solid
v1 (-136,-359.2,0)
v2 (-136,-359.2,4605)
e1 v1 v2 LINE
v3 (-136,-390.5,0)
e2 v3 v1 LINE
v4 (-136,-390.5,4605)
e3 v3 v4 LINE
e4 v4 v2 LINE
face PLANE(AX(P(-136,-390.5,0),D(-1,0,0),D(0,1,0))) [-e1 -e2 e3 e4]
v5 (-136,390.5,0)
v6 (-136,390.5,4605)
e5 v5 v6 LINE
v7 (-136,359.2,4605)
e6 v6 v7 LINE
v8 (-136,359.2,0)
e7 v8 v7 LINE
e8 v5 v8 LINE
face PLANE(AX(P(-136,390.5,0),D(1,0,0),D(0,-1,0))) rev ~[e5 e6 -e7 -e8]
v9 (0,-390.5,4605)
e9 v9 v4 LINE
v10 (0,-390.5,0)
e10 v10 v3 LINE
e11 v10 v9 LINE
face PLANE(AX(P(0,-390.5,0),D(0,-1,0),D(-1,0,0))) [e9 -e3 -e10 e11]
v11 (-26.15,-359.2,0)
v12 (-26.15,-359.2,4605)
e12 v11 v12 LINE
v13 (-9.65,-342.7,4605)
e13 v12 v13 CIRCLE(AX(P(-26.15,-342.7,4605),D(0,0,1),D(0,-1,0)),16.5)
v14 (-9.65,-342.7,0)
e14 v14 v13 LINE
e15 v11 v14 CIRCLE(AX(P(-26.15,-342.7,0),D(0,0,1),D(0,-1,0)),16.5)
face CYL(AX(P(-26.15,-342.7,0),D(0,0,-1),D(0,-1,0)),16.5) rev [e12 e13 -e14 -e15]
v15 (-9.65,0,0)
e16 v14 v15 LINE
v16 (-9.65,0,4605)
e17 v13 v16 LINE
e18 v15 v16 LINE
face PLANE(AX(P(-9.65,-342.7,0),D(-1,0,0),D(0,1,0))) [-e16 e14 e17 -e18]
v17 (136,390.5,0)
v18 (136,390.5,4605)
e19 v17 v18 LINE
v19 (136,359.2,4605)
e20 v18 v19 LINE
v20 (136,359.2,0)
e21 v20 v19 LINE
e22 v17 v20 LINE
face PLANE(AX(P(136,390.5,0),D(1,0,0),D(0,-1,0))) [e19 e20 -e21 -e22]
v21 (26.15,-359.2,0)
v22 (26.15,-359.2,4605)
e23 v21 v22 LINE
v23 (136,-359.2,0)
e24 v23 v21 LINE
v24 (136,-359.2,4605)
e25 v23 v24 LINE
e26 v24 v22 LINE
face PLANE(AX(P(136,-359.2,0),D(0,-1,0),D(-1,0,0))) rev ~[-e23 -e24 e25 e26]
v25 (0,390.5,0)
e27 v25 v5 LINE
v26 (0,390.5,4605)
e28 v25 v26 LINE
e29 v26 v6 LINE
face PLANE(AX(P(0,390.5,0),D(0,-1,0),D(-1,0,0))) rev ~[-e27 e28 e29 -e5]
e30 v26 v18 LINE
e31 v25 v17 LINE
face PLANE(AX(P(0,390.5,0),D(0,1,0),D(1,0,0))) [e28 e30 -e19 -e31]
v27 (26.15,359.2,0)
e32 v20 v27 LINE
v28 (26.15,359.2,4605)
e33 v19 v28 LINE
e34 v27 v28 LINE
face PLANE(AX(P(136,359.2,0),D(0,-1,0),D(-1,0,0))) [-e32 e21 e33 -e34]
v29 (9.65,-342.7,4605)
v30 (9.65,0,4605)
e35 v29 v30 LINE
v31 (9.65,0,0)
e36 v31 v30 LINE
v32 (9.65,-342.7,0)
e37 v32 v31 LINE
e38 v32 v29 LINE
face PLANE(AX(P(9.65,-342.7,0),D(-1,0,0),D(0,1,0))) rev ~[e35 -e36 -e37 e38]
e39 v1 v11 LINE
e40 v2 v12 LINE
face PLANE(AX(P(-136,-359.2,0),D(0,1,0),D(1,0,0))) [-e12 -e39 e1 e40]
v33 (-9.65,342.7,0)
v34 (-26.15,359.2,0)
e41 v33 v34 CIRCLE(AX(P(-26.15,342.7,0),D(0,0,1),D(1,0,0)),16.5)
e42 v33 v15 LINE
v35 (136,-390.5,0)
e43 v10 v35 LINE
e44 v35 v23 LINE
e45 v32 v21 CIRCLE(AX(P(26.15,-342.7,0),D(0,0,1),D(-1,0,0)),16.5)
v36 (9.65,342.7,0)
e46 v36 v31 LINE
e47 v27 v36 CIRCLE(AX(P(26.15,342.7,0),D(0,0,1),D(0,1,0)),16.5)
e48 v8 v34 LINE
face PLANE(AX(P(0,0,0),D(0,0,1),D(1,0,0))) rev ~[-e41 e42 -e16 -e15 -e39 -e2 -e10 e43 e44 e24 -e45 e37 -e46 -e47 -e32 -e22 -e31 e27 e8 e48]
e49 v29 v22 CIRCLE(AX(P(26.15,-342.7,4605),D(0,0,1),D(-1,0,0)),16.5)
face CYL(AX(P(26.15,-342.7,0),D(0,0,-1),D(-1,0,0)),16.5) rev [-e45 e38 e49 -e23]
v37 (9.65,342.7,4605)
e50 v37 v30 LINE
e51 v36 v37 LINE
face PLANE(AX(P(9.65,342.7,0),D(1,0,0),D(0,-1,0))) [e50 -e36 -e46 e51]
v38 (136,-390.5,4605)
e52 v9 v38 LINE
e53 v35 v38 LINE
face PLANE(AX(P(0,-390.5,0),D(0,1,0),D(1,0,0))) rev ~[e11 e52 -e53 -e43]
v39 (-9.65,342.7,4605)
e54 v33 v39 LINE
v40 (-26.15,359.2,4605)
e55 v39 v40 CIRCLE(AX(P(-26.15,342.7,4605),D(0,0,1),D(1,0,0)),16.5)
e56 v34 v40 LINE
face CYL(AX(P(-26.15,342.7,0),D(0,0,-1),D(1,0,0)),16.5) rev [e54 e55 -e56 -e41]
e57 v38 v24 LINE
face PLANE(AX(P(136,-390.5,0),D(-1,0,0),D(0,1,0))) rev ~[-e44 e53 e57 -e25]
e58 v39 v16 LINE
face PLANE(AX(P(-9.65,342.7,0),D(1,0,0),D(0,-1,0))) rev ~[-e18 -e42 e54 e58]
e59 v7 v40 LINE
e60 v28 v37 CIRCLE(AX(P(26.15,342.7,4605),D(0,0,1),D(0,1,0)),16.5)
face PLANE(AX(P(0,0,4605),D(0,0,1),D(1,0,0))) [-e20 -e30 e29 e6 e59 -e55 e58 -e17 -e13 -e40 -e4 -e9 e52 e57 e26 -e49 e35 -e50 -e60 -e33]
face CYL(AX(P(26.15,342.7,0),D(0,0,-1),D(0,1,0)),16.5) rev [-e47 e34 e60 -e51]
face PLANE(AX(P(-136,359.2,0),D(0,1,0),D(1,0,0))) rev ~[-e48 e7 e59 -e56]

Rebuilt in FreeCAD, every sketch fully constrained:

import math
import FreeCAD as App
import Part
import Sketcher
from FreeCAD import Vector

doc = App.newDocument("Part")
body = doc.addObject("PartDesign::Body", "Body")

# Sketch on XY plane
sketch1 = body.newObject("Sketcher::SketchObject", "Sketch")
sketch1.AttachmentSupport = (doc.getObject("XY_Plane"), [""])
sketch1.MapMode = "FlatFace"
sketch1.addGeometry(Part.LineSegment(Vector(-136, -359, 0), Vector(-136, -390, 0)), False)
sketch1.addGeometry(Part.LineSegment(Vector(-136, -390, 0), Vector(136, -390, 0)), False)
sketch1.addGeometry(Part.LineSegment(Vector(136, -390, 0), Vector(136, -359, 0)), False)
sketch1.addGeometry(Part.LineSegment(Vector(136, -359, 0), Vector(26, -359, 0)), False)
sketch1.addGeometry(Part.ArcOfCircle(Part.Circle(Vector(26, -343, 0), Vector(0, 0, 1), 16), math.radians(180), math.radians(270)), False)
sketch1.addGeometry(Part.LineSegment(Vector(10, -343, 0), Vector(10, 343, 0)), False)
sketch1.addGeometry(Part.ArcOfCircle(Part.Circle(Vector(26, 343, 0), Vector(0, 0, 1), 16), math.radians(90), math.radians(180)), False)
sketch1.addGeometry(Part.LineSegment(Vector(26, 359, 0), Vector(136, 359, 0)), False)
sketch1.addGeometry(Part.LineSegment(Vector(136, 359, 0), Vector(136, 390, 0)), False)
sketch1.addGeometry(Part.LineSegment(Vector(136, 390, 0), Vector(-136, 390, 0)), False)
sketch1.addGeometry(Part.LineSegment(Vector(-136, 390, 0), Vector(-136, 359, 0)), False)
sketch1.addGeometry(Part.LineSegment(Vector(-136, 359, 0), Vector(-26, 359, 0)), False)
sketch1.addGeometry(Part.ArcOfCircle(Part.Circle(Vector(-26, 343, 0), Vector(0, 0, 1), 16), math.radians(0), math.radians(90)), False)
sketch1.addGeometry(Part.LineSegment(Vector(-10, 343, 0), Vector(-10, -343, 0)), False)
sketch1.addGeometry(Part.ArcOfCircle(Part.Circle(Vector(-26, -343, 0), Vector(0, 0, 1), 16), math.radians(-90), math.radians(0)), False)
sketch1.addGeometry(Part.LineSegment(Vector(-26, -359, 0), Vector(-136, -359, 0)), False)
sketch1.addConstraint(Sketcher.Constraint("Coincident", 0, 2, 1, 1))
sketch1.addConstraint(Sketcher.Constraint("Coincident", 1, 2, 2, 1))
sketch1.addConstraint(Sketcher.Constraint("Coincident", 2, 2, 3, 1))
sketch1.addConstraint(Sketcher.Constraint("Tangent", 3, 2, 4, 2))
sketch1.addConstraint(Sketcher.Constraint("Tangent", 4, 1, 5, 1))
sketch1.addConstraint(Sketcher.Constraint("Tangent", 5, 2, 6, 2))
sketch1.addConstraint(Sketcher.Constraint("Tangent", 6, 1, 7, 1))
sketch1.addConstraint(Sketcher.Constraint("Coincident", 7, 2, 8, 1))
sketch1.addConstraint(Sketcher.Constraint("Coincident", 8, 2, 9, 1))
sketch1.addConstraint(Sketcher.Constraint("Coincident", 9, 2, 10, 1))
sketch1.addConstraint(Sketcher.Constraint("Coincident", 10, 2, 11, 1))
sketch1.addConstraint(Sketcher.Constraint("Tangent", 11, 2, 12, 2))
sketch1.addConstraint(Sketcher.Constraint("Tangent", 12, 1, 13, 1))
sketch1.addConstraint(Sketcher.Constraint("Tangent", 13, 2, 14, 2))
sketch1.addConstraint(Sketcher.Constraint("Tangent", 14, 1, 15, 1))
sketch1.addConstraint(Sketcher.Constraint("Coincident", 15, 2, 0, 1))
sketch1.addConstraint(Sketcher.Constraint("Vertical", 0))
sketch1.addConstraint(Sketcher.Constraint("Horizontal", 1))
sketch1.addConstraint(Sketcher.Constraint("Vertical", 2))
sketch1.addConstraint(Sketcher.Constraint("Horizontal", 3))
sketch1.addConstraint(Sketcher.Constraint("Vertical", 5))
sketch1.addConstraint(Sketcher.Constraint("Horizontal", 7))
sketch1.addConstraint(Sketcher.Constraint("Vertical", 8))
sketch1.addConstraint(Sketcher.Constraint("Horizontal", 9))
sketch1.addConstraint(Sketcher.Constraint("Vertical", 10))
sketch1.addConstraint(Sketcher.Constraint("Horizontal", 11))
sketch1.addConstraint(Sketcher.Constraint("Vertical", 13))
sketch1.addConstraint(Sketcher.Constraint("Horizontal", 15))
sketch1.addConstraint(Sketcher.Constraint("Equal", 4, 6))
sketch1.addConstraint(Sketcher.Constraint("Equal", 6, 12))
sketch1.addConstraint(Sketcher.Constraint("Equal", 12, 14))
sketch1.addConstraint(Sketcher.Constraint("Symmetric", 4, 3, 12, 3, -1, 1))
sketch1.addConstraint(Sketcher.Constraint("Symmetric", 0, 2, 8, 2, -1, 1))
sketch1.addConstraint(Sketcher.Constraint("Symmetric", 7, 2, 10, 2, -2))
sketch1.addConstraint(Sketcher.Constraint("Symmetric", 2, 2, 15, 2, -2))
sketch1.addConstraint(Sketcher.Constraint("Radius", 4, 16.5))
sketch1.addConstraint(Sketcher.Constraint("DistanceY", 0, 2, 0, 1, 31.3))
sketch1.addConstraint(Sketcher.Constraint("DistanceX", 0, 2, -1, 1, 136.0))
sketch1.addConstraint(Sketcher.Constraint("DistanceY", 0, 2, -1, 1, 390.5))
sketch1.addConstraint(Sketcher.Constraint("DistanceX", -1, 1, 4, 1, 9.65))
pad1 = body.newObject("PartDesign::Pad", "Pad")
pad1.Profile = sketch1
pad1.Length = 4605

doc.recompute()
